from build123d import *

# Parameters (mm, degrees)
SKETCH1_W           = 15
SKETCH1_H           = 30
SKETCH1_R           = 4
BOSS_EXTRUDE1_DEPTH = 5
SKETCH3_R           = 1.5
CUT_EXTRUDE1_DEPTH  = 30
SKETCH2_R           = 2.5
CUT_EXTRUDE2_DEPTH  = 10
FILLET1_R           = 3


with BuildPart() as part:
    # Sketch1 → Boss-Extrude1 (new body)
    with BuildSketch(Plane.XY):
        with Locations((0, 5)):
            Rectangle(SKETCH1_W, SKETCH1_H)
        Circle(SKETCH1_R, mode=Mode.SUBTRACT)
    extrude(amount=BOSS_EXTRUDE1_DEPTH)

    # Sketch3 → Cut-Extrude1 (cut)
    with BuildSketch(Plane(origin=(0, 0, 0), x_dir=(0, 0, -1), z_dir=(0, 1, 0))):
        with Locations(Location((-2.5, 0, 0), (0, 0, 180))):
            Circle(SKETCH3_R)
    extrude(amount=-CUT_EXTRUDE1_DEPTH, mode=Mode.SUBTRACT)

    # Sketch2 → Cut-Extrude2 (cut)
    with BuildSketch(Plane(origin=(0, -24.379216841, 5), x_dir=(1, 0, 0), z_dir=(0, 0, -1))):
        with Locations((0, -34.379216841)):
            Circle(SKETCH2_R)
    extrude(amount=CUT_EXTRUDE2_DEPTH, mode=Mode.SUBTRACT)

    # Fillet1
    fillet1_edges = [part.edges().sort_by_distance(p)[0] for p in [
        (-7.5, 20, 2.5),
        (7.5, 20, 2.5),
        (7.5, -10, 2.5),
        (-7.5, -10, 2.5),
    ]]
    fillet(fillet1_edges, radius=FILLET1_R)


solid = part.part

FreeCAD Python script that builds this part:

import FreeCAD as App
import Part
import Sketcher
Q = App.Units.Quantity


def edges_at(feature, points):
    """Names of the edges that pass closest to the given points."""
    edges = feature.Shape.Edges
    near = lambda p: min(range(len(edges)), key=lambda i: edges[i].distToShape(Part.Vertex(*p))[0])
    return sorted({f"Edge{near(p) + 1}" for p in points})

doc = App.newDocument("Part")
params = doc.addObject("Spreadsheet::Sheet", "Params")
for row, (alias, value) in enumerate([
    ("sketch1_diameter", "8 mm"),
    ("sketch1_width", "15 mm"),
    ("sketch1_height", "30 mm"),
    ("pad1_length", "5 mm"),
    ("sketch2_diameter", "3 mm"),
    ("pocket1_length", "30 mm"),
    ("sketch3_diameter", "5 mm"),
    ("pocket2_length", "10 mm"),
    ("fillet_radius", "3 mm"),
], start=1):
    params.set(f"A{row}", alias)
    params.set(f"B{row}", "=" + value)
    params.setAlias(f"B{row}", alias)

body = doc.addObject("PartDesign::Body", "Body")

sketch1 = body.newObject("Sketcher::SketchObject", "Sketch")
sketch1.AttachmentSupport = (doc.getObject("XY_Plane"), [""])
sketch1.MapMode = "FlatFace"
sketch1.addGeometry([
    Part.LineSegment(App.Vector(-7.5, 20, 0), App.Vector(-7.5, -10, 0)),
    Part.LineSegment(App.Vector(-7.5, -10, 0), App.Vector(7.5, -10, 0)),
    Part.LineSegment(App.Vector(7.5, -10, 0), App.Vector(7.5, 20, 0)),
    Part.LineSegment(App.Vector(7.5, 20, 0), App.Vector(-7.5, 20, 0)),
    Part.Circle(App.Vector(0, 0, 0), App.Vector(0, 0, 1), 4),
], False)
sketch1.addConstraint([
    Sketcher.Constraint("Coincident", 0, 2, 1, 1),
    Sketcher.Constraint("Coincident", 1, 2, 2, 1),
    Sketcher.Constraint("Coincident", 2, 2, 3, 1),
    Sketcher.Constraint("Coincident", 3, 2, 0, 1),
    Sketcher.Constraint("Vertical", 0),
    Sketcher.Constraint("Horizontal", 1),
    Sketcher.Constraint("Vertical", 2),
    Sketcher.Constraint("Horizontal", 3),
    Sketcher.Constraint("Coincident", 4, 3, -1, 1),
    Sketcher.Constraint("Diameter", 4, Q("8 mm")),
    Sketcher.Constraint("DistanceX", 1, 1, 1, 2, Q("15 mm")),
    Sketcher.Constraint("DistanceY", 0, 2, 0, 1, Q("30 mm")),
    Sketcher.Constraint("DistanceY", 0, 2, -1, 1, Q("10 mm")),
    Sketcher.Constraint("DistanceX", 0, 2, -1, 1, Q("7.5 mm")),
])
sketch1.setExpression("Constraints[9]", "Params.sketch1_diameter")
sketch1.setExpression("Constraints[10]", "Params.sketch1_width")
sketch1.setExpression("Constraints[11]", "Params.sketch1_height")
pad1 = body.newObject("PartDesign::Pad", "Pad")
pad1.Profile = sketch1
pad1.setExpression("Length", "Params.pad1_length")

sketch2 = body.newObject("Sketcher::SketchObject", "Sketch001")
sketch2.AttachmentSupport = (doc.getObject("XZ_Plane"), [""])
sketch2.MapMode = "FlatFace"
sketch2.addGeometry(Part.Circle(App.Vector(0, 2.5, 0), App.Vector(0, 0, 1), 1.5), False)
sketch2.addConstraint([
    Sketcher.Constraint("PointOnObject", 0, 3, -2),
    Sketcher.Constraint("Diameter", 0, Q("3 mm")),
    Sketcher.Constraint("DistanceY", -1, 1, 0, 3, Q("2.5 mm")),
])
sketch2.setExpression("Constraints[1]", "Params.sketch2_diameter")
pocket1 = body.newObject("PartDesign::Pocket", "Pocket")
pocket1.Profile = sketch2
pocket1.setExpression("Length", "Params.pocket1_length")
pocket1.Reversed = True

sketch3 = body.newObject("Sketcher::SketchObject", "Sketch002")
sketch3.AttachmentSupport = (doc.getObject("XY_Plane"), [""])
sketch3.MapMode = "FlatFace"
sketch3.AttachmentOffset = App.Placement(App.Vector(0, 0, 5), App.Rotation())
sketch3.addGeometry(Part.Circle(App.Vector(0, 10, 0), App.Vector(0, 0, 1), 2.5), False)
sketch3.addConstraint([
    Sketcher.Constraint("PointOnObject", 0, 3, -2),
    Sketcher.Constraint("Diameter", 0, Q("5 mm")),
    Sketcher.Constraint("DistanceY", -1, 1, 0, 3, Q("10 mm")),
])
sketch3.setExpression("Constraints[1]", "Params.sketch3_diameter")
pocket2 = body.newObject("PartDesign::Pocket", "Pocket001")
pocket2.Profile = sketch3
pocket2.setExpression("Length", "Params.pocket2_length")
doc.recompute()

fillet = body.newObject("PartDesign::Fillet", "Fillet")
fillet.Base = (pocket2, edges_at(pocket2, [
    (-7.5, 20, 2.5),
    (7.5, 20, 2.5),
    (7.5, -10, 2.5),
    (-7.5, -10, 2.5),
]))
fillet.setExpression("Radius", "Params.fillet_radius")

doc.recompute()
